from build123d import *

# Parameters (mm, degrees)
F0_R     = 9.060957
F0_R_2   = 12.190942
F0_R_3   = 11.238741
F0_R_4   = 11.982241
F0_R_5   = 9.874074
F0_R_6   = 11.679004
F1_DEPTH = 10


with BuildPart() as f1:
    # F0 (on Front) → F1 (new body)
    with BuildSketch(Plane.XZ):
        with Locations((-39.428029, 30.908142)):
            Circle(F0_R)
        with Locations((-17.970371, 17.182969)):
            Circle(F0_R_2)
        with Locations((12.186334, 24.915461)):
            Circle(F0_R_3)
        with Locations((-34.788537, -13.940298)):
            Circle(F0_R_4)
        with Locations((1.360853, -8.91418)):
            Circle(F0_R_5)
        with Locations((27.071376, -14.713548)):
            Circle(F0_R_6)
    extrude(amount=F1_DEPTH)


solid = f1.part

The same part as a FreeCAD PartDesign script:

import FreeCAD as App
import Part
import Sketcher
Q = App.Units.Quantity

doc = App.newDocument("Part")
body = doc.addObject("PartDesign::Body", "Body")
body.AllowCompound = True

# Sketch on XZ plane
sketch1 = body.newObject("Sketcher::SketchObject", "Sketch")
sketch1.AttachmentSupport = (doc.getObject("XZ_Plane"), [""])
sketch1.MapMode = "FlatFace"
sketch1.addGeometry(Part.Circle(App.Vector(-39, 31, 0), App.Vector(0, 0, 1), 9), False)
sketch1.addGeometry(Part.Circle(App.Vector(-18, 17, 0), App.Vector(0, 0, 1), 12), False)
sketch1.addGeometry(Part.Circle(App.Vector(12, 25, 0), App.Vector(0, 0, 1), 11), False)
sketch1.addGeometry(Part.Circle(App.Vector(-35, -14, 0), App.Vector(0, 0, 1), 12), False)
sketch1.addGeometry(Part.Circle(App.Vector(1, -9, 0), App.Vector(0, 0, 1), 10), False)
sketch1.addGeometry(Part.Circle(App.Vector(27, -15, 0), App.Vector(0, 0, 1), 12), False)
sketch1.addConstraint(Sketcher.Constraint("Diameter", 2, Q("22.477482 mm")))
sketch1.addConstraint(Sketcher.Constraint("Diameter", 4, Q("19.748148 mm")))
sketch1.addConstraint(Sketcher.Constraint("Diameter", 5, Q("23.358008 mm")))
sketch1.addConstraint(Sketcher.Constraint("Diameter", 0, Q("18.121914 mm")))
sketch1.addConstraint(Sketcher.Constraint("Diameter", 1, Q("24.381884 mm")))
sketch1.addConstraint(Sketcher.Constraint("Diameter", 3, Q("23.964482 mm")))
sketch1.addConstraint(Sketcher.Constraint("DistanceX", 0, 3, -1, 1, Q("39.428029 mm")))
sketch1.addConstraint(Sketcher.Constraint("DistanceX", 1, 3, -1, 1, Q("17.970371 mm")))
sketch1.addConstraint(Sketcher.Constraint("DistanceY", -1, 1, 1, 3, Q("17.182969 mm")))
sketch1.addConstraint(Sketcher.Constraint("DistanceY", -1, 1, 2, 3, Q("24.915461 mm")))
sketch1.addConstraint(Sketcher.Constraint("DistanceY", 4, 3, -1, 1, Q("8.91418 mm")))
sketch1.addConstraint(Sketcher.Constraint("DistanceY", 2, 3, 0, 3, Q("5.992681 mm")))
sketch1.addConstraint(Sketcher.Constraint("DistanceY", 3, 3, 0, 3, Q("44.84844 mm")))
sketch1.addConstraint(Sketcher.Constraint("DistanceX", 3, 3, 2, 3, Q("46.974871 mm")))
sketch1.addConstraint(Sketcher.Constraint("DistanceX", 4, 3, 2, 3, Q("10.825481 mm")))
sketch1.addConstraint(Sketcher.Constraint("DistanceY", 5, 3, 2, 3, Q("39.629009 mm")))
sketch1.addConstraint(Sketcher.Constraint("DistanceX", -1, 1, 2, 3, Q("12.186334 mm")))
sketch1.addConstraint(Sketcher.Constraint("DistanceX", -1, 1, 5, 3, Q("27.071376 mm")))
pad1 = body.newObject("PartDesign::Pad", "Pad")
pad1.Profile = sketch1
pad1.Length = 10

doc.recompute()
